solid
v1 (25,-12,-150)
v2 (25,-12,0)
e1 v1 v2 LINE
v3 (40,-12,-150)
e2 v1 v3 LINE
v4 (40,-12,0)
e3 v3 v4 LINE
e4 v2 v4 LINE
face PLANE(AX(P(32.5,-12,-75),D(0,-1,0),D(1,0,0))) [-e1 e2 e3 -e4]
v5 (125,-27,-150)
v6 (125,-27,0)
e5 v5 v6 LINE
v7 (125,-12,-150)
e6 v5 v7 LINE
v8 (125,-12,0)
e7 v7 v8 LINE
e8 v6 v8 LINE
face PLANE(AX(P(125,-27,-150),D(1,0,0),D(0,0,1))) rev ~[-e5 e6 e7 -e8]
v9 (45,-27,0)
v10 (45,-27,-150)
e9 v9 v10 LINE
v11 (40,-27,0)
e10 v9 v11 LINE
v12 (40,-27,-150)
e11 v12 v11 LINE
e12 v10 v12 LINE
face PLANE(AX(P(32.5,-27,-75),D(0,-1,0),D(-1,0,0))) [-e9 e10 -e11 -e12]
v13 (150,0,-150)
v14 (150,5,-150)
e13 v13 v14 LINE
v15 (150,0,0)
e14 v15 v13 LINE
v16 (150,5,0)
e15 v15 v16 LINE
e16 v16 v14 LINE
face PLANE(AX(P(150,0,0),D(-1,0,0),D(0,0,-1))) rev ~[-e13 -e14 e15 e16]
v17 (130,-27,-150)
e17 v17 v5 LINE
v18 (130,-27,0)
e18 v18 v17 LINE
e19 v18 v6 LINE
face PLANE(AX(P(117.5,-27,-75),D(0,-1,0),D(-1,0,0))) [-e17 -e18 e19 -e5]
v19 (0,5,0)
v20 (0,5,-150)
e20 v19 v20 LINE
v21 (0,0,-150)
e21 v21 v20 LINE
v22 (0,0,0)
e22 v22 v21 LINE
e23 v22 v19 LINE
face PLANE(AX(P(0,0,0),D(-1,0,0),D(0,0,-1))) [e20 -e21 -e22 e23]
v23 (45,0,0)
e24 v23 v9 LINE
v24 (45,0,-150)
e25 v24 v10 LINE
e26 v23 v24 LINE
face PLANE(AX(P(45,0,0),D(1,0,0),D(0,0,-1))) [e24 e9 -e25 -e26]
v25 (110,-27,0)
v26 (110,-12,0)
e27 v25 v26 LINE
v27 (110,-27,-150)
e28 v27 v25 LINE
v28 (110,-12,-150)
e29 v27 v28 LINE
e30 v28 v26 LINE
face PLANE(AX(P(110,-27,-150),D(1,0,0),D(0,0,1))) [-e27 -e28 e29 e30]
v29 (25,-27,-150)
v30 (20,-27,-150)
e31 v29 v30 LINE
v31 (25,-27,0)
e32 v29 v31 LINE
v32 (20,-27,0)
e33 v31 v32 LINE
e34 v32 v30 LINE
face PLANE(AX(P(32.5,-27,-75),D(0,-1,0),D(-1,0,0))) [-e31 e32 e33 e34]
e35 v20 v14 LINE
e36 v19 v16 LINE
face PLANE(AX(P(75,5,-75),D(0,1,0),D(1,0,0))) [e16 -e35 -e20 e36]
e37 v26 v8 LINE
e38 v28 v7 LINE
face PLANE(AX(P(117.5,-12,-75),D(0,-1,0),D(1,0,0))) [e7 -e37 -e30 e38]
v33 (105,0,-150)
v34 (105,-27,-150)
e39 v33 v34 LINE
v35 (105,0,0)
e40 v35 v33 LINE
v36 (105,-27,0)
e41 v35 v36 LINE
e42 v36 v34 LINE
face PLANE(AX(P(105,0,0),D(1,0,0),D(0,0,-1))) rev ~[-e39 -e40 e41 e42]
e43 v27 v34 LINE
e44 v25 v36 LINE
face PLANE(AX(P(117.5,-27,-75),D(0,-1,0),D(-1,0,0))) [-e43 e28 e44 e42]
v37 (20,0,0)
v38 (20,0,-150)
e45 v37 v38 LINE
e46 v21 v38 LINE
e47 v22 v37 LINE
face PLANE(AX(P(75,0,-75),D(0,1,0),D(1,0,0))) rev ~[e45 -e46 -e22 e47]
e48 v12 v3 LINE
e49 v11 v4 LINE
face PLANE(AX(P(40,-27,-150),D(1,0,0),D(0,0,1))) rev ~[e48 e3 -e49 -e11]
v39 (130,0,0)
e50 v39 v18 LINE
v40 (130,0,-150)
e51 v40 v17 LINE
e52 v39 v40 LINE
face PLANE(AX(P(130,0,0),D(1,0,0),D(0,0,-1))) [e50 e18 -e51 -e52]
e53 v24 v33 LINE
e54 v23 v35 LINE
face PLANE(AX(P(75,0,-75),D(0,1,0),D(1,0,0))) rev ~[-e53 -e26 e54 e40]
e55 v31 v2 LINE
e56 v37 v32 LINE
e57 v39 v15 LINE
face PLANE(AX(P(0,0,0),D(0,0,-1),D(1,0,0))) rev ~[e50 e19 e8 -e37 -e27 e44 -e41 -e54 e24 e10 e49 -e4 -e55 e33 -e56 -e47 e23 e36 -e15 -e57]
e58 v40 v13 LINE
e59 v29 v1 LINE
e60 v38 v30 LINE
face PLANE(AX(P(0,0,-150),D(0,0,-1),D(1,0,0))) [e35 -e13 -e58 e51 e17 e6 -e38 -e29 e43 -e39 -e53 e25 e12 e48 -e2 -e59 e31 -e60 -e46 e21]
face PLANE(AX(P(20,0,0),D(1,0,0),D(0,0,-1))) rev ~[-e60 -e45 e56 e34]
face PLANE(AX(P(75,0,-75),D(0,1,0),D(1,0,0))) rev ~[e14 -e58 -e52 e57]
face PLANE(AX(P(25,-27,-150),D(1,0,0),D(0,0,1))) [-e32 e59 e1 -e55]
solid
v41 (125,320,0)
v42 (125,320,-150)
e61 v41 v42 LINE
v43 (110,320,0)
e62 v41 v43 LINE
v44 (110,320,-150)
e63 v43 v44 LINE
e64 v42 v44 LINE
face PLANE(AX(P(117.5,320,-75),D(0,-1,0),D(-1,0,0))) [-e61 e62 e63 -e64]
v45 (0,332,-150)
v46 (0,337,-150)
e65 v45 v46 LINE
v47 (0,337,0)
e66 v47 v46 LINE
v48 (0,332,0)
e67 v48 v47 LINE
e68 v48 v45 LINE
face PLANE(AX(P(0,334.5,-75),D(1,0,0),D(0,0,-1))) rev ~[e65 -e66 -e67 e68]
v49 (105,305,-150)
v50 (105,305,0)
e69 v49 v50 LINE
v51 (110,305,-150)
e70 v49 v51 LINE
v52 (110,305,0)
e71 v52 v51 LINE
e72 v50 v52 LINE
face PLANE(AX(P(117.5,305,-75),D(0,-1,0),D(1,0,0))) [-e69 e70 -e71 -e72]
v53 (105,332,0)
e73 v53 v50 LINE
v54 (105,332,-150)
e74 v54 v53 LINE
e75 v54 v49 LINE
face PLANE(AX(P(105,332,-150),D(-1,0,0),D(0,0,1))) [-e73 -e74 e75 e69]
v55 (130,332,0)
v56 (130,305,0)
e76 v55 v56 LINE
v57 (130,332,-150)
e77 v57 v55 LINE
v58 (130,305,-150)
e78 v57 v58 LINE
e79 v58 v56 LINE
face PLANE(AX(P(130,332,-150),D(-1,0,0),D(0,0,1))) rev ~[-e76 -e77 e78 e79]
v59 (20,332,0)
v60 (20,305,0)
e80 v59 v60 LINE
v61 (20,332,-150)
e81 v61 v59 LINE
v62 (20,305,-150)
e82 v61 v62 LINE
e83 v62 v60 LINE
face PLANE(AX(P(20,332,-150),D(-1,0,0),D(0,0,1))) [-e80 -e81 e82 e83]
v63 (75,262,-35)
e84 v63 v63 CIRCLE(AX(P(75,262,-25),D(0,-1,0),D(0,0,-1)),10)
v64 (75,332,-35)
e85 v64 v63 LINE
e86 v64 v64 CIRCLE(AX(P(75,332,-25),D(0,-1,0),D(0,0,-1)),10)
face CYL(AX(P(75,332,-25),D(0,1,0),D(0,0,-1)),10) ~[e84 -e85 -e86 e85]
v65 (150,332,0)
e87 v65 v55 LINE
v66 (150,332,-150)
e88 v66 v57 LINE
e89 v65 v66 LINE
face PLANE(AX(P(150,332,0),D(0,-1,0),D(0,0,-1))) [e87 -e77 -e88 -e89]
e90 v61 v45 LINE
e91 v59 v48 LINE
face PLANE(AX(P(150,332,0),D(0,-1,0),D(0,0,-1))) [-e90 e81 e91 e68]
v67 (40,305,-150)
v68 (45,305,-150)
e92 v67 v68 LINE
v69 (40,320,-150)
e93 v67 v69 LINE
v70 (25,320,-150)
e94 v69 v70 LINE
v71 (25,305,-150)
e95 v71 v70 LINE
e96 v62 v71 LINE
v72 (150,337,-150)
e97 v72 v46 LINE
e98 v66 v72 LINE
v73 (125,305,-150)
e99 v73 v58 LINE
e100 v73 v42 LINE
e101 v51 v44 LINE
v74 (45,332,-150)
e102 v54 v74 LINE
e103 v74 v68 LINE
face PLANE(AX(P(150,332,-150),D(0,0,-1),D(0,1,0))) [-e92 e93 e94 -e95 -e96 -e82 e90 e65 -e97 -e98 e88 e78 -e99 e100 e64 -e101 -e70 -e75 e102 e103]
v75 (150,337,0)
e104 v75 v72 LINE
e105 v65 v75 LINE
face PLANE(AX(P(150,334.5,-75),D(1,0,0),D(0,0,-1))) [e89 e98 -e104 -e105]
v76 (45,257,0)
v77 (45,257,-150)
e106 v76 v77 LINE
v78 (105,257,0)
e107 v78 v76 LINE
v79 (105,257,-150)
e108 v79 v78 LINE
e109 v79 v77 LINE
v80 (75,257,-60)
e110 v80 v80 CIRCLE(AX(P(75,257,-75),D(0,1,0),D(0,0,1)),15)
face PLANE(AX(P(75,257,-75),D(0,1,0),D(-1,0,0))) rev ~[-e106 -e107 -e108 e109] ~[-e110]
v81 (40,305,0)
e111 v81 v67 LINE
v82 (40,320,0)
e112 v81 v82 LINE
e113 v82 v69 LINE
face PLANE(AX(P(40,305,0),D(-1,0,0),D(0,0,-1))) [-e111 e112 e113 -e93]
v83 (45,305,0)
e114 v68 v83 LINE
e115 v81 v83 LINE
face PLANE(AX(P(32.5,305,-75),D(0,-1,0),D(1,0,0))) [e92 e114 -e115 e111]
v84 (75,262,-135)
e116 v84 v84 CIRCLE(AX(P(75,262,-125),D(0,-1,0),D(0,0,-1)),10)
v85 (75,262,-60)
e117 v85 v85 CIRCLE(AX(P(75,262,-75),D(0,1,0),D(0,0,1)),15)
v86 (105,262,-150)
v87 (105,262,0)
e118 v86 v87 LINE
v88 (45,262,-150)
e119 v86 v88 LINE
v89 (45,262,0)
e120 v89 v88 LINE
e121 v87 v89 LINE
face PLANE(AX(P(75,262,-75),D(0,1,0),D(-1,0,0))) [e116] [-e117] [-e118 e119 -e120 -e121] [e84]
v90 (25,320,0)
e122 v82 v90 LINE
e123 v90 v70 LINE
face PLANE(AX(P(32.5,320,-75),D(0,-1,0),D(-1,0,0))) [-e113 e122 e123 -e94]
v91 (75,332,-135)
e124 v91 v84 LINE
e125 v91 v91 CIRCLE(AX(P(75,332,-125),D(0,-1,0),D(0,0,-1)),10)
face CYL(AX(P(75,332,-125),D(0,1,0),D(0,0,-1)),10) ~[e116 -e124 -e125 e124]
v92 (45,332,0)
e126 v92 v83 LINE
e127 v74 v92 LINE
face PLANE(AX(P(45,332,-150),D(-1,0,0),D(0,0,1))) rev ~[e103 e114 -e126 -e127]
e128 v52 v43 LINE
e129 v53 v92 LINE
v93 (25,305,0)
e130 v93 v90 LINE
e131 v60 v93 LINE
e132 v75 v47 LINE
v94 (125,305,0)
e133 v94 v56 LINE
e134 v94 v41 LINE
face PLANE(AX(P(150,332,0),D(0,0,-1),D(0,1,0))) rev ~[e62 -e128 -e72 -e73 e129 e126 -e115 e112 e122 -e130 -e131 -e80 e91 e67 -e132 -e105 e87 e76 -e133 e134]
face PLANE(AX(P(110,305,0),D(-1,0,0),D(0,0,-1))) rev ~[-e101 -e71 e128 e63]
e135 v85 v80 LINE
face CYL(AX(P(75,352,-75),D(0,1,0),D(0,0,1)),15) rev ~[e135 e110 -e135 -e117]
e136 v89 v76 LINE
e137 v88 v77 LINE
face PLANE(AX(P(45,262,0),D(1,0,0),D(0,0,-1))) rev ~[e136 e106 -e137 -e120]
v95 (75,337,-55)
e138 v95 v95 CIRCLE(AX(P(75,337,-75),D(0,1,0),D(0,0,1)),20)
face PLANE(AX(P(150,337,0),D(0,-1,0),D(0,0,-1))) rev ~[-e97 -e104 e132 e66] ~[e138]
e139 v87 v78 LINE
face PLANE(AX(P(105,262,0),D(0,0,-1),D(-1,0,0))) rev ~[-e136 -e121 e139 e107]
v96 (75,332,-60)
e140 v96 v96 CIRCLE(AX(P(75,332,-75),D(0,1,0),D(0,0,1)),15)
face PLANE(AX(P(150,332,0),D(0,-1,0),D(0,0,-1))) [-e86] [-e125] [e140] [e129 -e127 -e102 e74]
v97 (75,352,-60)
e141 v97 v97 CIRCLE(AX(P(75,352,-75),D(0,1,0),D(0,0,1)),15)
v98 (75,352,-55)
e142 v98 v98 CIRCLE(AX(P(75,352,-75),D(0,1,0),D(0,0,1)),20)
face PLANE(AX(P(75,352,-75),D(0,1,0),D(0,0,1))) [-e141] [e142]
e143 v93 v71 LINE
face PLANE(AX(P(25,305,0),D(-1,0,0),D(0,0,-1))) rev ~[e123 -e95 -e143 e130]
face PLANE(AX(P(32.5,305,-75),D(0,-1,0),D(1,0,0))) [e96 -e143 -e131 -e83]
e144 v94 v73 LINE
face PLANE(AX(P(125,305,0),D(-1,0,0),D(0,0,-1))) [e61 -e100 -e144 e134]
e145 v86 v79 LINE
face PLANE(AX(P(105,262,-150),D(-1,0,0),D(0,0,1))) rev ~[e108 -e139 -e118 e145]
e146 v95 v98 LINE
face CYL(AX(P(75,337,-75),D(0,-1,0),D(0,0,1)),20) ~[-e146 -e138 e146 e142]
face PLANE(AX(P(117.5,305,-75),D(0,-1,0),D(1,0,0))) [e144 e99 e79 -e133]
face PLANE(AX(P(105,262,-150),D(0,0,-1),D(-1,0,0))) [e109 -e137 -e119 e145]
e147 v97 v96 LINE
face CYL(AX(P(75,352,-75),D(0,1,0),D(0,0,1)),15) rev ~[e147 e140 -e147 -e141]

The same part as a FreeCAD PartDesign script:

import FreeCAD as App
import Part
import Sketcher
from FreeCAD import Vector


def add_polygon(sketch, points):
    """Adds a closed chain of lines whose ends are joined by coincident constraints."""
    first, n = sketch.GeometryCount, len(points)
    for a, b in zip(points, points[1:] + points[:1]):
        sketch.addGeometry(Part.LineSegment(App.Vector(*a, 0), App.Vector(*b, 0)), False)
    for i in range(n):
        sketch.addConstraint(Sketcher.Constraint("Coincident", first + i, 2, first + (i + 1) % n, 1))

doc = App.newDocument("Part")
body = doc.addObject("PartDesign::Body", "Body")

sketch1 = body.newObject("Sketcher::SketchObject", "Sketch")
sketch1.AttachmentSupport = (doc.getObject("XZ_Plane"), [""])
sketch1.MapMode = "FlatFace"
add_polygon(sketch1, [(0, -150), (0, 0), (150, 0), (150, -150)])
sketch1.addConstraint([
    Sketcher.Constraint("Vertical", 0),
    Sketcher.Constraint("Horizontal", 1),
    Sketcher.Constraint("Vertical", 2),
    Sketcher.Constraint("Horizontal", 3),
    Sketcher.Constraint("Coincident", 0, 2, -1, 1),
    Sketcher.Constraint("Equal", 3, 0),
    Sketcher.Constraint("DistanceX", 1, 1, 1, 2, 150.0),
])
pad1 = body.newObject("PartDesign::Pad", "Pad")
pad1.Profile = sketch1
pad1.Length = 5
pad1.Reversed = True

sketch2 = body.newObject("Sketcher::SketchObject", "Sketch001")
sketch2.AttachmentSupport = (doc.getObject("XZ_Plane"), [""])
sketch2.MapMode = "FlatFace"
add_polygon(sketch2, [(45, -150), (45, 0), (20, 0), (20, -150)])
add_polygon(sketch2, [(130, -150), (130, 0), (105, 0), (105, -150)])
sketch2.addConstraint([
    Sketcher.Constraint("Vertical", 0),
    Sketcher.Constraint("Horizontal", 1),
    Sketcher.Constraint("Vertical", 2),
    Sketcher.Constraint("Horizontal", 3),
    Sketcher.Constraint("Vertical", 4),
    Sketcher.Constraint("Horizontal", 5),
    Sketcher.Constraint("Vertical", 6),
    Sketcher.Constraint("Horizontal", 7),
    Sketcher.Constraint("PointOnObject", 0, 2, -1),
    Sketcher.Constraint("PointOnObject", 4, 2, -1),
    Sketcher.Constraint("Horizontal", 3, 2, 6, 2),
    Sketcher.Constraint("Equal", 3, 5),
    Sketcher.Constraint("DistanceX", 1, 2, 1, 1, 25.0),
    Sketcher.Constraint("DistanceY", 0, 1, 0, 2, 150.0),
    Sketcher.Constraint("DistanceX", -1, 1, 0, 2, 45.0),
    Sketcher.Constraint("DistanceX", -1, 1, 4, 2, 130.0),
])
pad2 = body.newObject("PartDesign::Pad", "Pad001")
pad2.Profile = sketch2
pad2.Length = 27

sketch3 = body.newObject("Sketcher::SketchObject", "Sketch002")
sketch3.AttachmentSupport = (doc.getObject("XZ_Plane"), [""])
sketch3.MapMode = "FlatFace"
sketch3.AttachmentOffset = App.Placement(Vector(0, 0, 27), App.Rotation())
add_polygon(sketch3, [(25, 0), (25, -150), (40, -150), (40, 0)])
add_polygon(sketch3, [(110, 0), (110, -150), (125, -150), (125, 0)])
sketch3.addConstraint([
    Sketcher.Constraint("Vertical", 0),
    Sketcher.Constraint("Horizontal", 1),
    Sketcher.Constraint("Vertical", 2),
    Sketcher.Constraint("Horizontal", 3),
    Sketcher.Constraint("Vertical", 4),
    Sketcher.Constraint("Horizontal", 5),
    Sketcher.Constraint("Vertical", 6),
    Sketcher.Constraint("Horizontal", 7),
    Sketcher.Constraint("PointOnObject", 2, 2, -1),
    Sketcher.Constraint("PointOnObject", 6, 2, -1),
    Sketcher.Constraint("Horizontal", 1, 2, 4, 2),
    Sketcher.Constraint("Equal", 3, 5),
    Sketcher.Constraint("DistanceX", 1, 1, 1, 2, 15.0),
    Sketcher.Constraint("DistanceY", 0, 2, 0, 1, 150.0),
    Sketcher.Constraint("DistanceX", -1, 1, 0, 2, 25.0),
    Sketcher.Constraint("DistanceX", -1, 1, 4, 2, 110.0),
])
pocket1 = body.newObject("PartDesign::Pocket", "Pocket")
pocket1.Profile = sketch3
pocket1.Length = 15
body2 = doc.addObject("PartDesign::Body", "Body001")

sketch4 = body2.newObject("Sketcher::SketchObject", "Sketch003")
sketch4.AttachmentSupport = (doc.getObject("YZ_Plane001"), [""])
sketch4.MapMode = "FlatFace"
sketch4.AttachmentOffset = App.Placement(Vector(0, 0, 150), App.Rotation())
add_polygon(sketch4, [(337, 0), (332, 0), (332, -150), (337, -150)])
sketch4.addConstraint([
    Sketcher.Constraint("Horizontal", 0),
    Sketcher.Constraint("Vertical", 1),
    Sketcher.Constraint("Horizontal", 2),
    Sketcher.Constraint("Vertical", 3),
    Sketcher.Constraint("PointOnObject", 0, 2, -1),
    Sketcher.Constraint("DistanceX", 0, 2, 0, 1, 5.0),
    Sketcher.Constraint("DistanceY", 1, 2, 1, 1, 150.0),
    Sketcher.Constraint("DistanceX", -1, 1, 0, 2, 332.0),
])
pad3 = body2.newObject("PartDesign::Pad", "Pad002")
pad3.Profile = sketch4
pad3.Length = 150
pad3.Reversed = True

sketch5 = body2.newObject("Sketcher::SketchObject", "Sketch004")
sketch5.AttachmentSupport = (doc.getObject("XZ_Plane001"), [""])
sketch5.MapMode = "FlatFace"
sketch5.AttachmentOffset = App.Placement(Vector(0, 0, -332), App.Rotation())
add_polygon(sketch5, [(105, 0), (105, -150), (130, -150), (130, 0)])
add_polygon(sketch5, [(20, 0), (20, -150), (45, -150), (45, 0)])
sketch5.addConstraint([
    Sketcher.Constraint("Vertical", 0),
    Sketcher.Constraint("Horizontal", 1),
    Sketcher.Constraint("Vertical", 2),
    Sketcher.Constraint("Horizontal", 3),
    Sketcher.Constraint("Vertical", 4),
    Sketcher.Constraint("Horizontal", 5),
    Sketcher.Constraint("Vertical", 6),
    Sketcher.Constraint("Horizontal", 7),
    Sketcher.Constraint("PointOnObject", 2, 2, -1),
    Sketcher.Constraint("PointOnObject", 6, 2, -1),
    Sketcher.Constraint("Horizontal", 1, 2, 4, 2),
    Sketcher.Constraint("Equal", 3, 5),
    Sketcher.Constraint("DistanceX", 1, 1, 1, 2, 25.0),
    Sketcher.Constraint("DistanceY", 0, 2, 0, 1, 150.0),
    Sketcher.Constraint("DistanceX", -1, 1, 0, 2, 105.0),
    Sketcher.Constraint("DistanceX", -1, 1, 4, 2, 20.0),
])
pad4 = body2.newObject("PartDesign::Pad", "Pad003")
pad4.Profile = sketch5
pad4.Length = 27

sketch6 = body2.newObject("Sketcher::SketchObject", "Sketch005")
sketch6.AttachmentSupport = (doc.getObject("XZ_Plane001"), [""])
sketch6.MapMode = "FlatFace"
sketch6.AttachmentOffset = App.Placement(Vector(0, 0, -305), App.Rotation())
add_polygon(sketch6, [(125, -150), (125, 0), (110, 0), (110, -150)])
add_polygon(sketch6, [(40, -150), (40, 0), (25, 0), (25, -150)])
sketch6.addConstraint([
    Sketcher.Constraint("Vertical", 0),
    Sketcher.Constraint("Horizontal", 1),
    Sketcher.Constraint("Vertical", 2),
    Sketcher.Constraint("Horizontal", 3),
    Sketcher.Constraint("Vertical", 4),
    Sketcher.Constraint("Horizontal", 5),
    Sketcher.Constraint("Vertical", 6),
    Sketcher.Constraint("Horizontal", 7),
    Sketcher.Constraint("PointOnObject", 0, 2, -1),
    Sketcher.Constraint("PointOnObject", 4, 2, -1),
    Sketcher.Constraint("Horizontal", 3, 2, 6, 2),
    Sketcher.Constraint("Equal", 3, 5),
    Sketcher.Constraint("DistanceX", 1, 2, 1, 1, 15.0),
    Sketcher.Constraint("DistanceY", 0, 1, 0, 2, 150.0),
    Sketcher.Constraint("DistanceX", -1, 1, 0, 2, 125.0),
    Sketcher.Constraint("DistanceX", -1, 1, 4, 2, 40.0),
])
pocket2 = body2.newObject("PartDesign::Pocket", "Pocket001")
pocket2.Profile = sketch6
pocket2.Length = 15

sketch7 = body2.newObject("Sketcher::SketchObject", "Sketch006")
sketch7.AttachmentSupport = (doc.getObject("XZ_Plane001"), [""])
sketch7.MapMode = "FlatFace"
sketch7.AttachmentOffset = App.Placement(Vector(0, 0, -337), App.Rotation())
sketch7.addGeometry(Part.Circle(Vector(75, -75, 0), Vector(0, 0, 1), 20), False)
sketch7.addConstraint([
    Sketcher.Constraint("Diameter", 0, 40.0),
    Sketcher.Constraint("DistanceX", -1, 1, 0, 3, 75.0),
    Sketcher.Constraint("DistanceY", 0, 3, -1, 1, 75.0),
])
pad5 = body2.newObject("PartDesign::Pad", "Pad004")
pad5.Profile = sketch7
pad5.Length = 15
pad5.Reversed = True

sketch8 = body2.newObject("Sketcher::SketchObject", "Sketch007")
sketch8.AttachmentSupport = (doc.getObject("XZ_Plane001"), [""])
sketch8.MapMode = "FlatFace"
sketch8.AttachmentOffset = App.Placement(Vector(0, 0, -332), App.Rotation())
sketch8.addGeometry([
    Part.Circle(Vector(75, -25, 0), Vector(0, 0, 1), 10),
    Part.Circle(Vector(75, -125, 0), Vector(0, 0, 1), 10),
], False)
sketch8.addConstraint([
    Sketcher.Constraint("Equal", 0, 1),
    Sketcher.Constraint("Vertical", 0, 3, 1, 3),
    Sketcher.Constraint("Diameter", 0, 20.0),
    Sketcher.Constraint("DistanceX", -1, 1, 0, 3, 75.0),
    Sketcher.Constraint("DistanceY", 0, 3, -1, 1, 25.0),
    Sketcher.Constraint("DistanceY", 1, 3, -1, 1, 125.0),
])
pad6 = body2.newObject("PartDesign::Pad", "Pad005")
pad6.Profile = sketch8
pad6.Length = 70

sketch9 = body2.newObject("Sketcher::SketchObject", "Sketch008")
sketch9.AttachmentSupport = (doc.getObject("XZ_Plane001"), [""])
sketch9.MapMode = "FlatFace"
sketch9.AttachmentOffset = App.Placement(Vector(0, 0, -262), App.Rotation())
add_polygon(sketch9, [(105, 0), (45, 0), (45, -150), (105, -150)])
sketch9.addConstraint([
    Sketcher.Constraint("Horizontal", 0),
    Sketcher.Constraint("Vertical", 1),
    Sketcher.Constraint("Horizontal", 2),
    Sketcher.Constraint("Vertical", 3),
    Sketcher.Constraint("PointOnObject", 0, 2, -1),
    Sketcher.Constraint("DistanceX", 0, 2, 0, 1, 60.0),
    Sketcher.Constraint("DistanceY", 1, 2, 1, 1, 150.0),
    Sketcher.Constraint("DistanceX", -1, 1, 0, 2, 45.0),
])
pad7 = body2.newObject("PartDesign::Pad", "Pad006")
pad7.Profile = sketch9
pad7.Length = 5

sketch10 = body2.newObject("Sketcher::SketchObject", "Sketch009")
sketch10.AttachmentSupport = (doc.getObject("XZ_Plane001"), [""])
sketch10.MapMode = "FlatFace"
sketch10.AttachmentOffset = App.Placement(Vector(0, 0, -352), App.Rotation())
sketch10.addGeometry(Part.Circle(Vector(75, -75, 0), Vector(0, 0, 1), 15), False)
sketch10.addConstraint([
    Sketcher.Constraint("Diameter", 0, 30.0),
    Sketcher.Constraint("DistanceX", -1, 1, 0, 3, 75.0),
    Sketcher.Constraint("DistanceY", 0, 3, -1, 1, 75.0),
])
pocket3 = body2.newObject("PartDesign::Pocket", "Pocket002")
pocket3.Profile = sketch10
pocket3.Length = 95
pocket3.Reversed = True

doc.recompute()
